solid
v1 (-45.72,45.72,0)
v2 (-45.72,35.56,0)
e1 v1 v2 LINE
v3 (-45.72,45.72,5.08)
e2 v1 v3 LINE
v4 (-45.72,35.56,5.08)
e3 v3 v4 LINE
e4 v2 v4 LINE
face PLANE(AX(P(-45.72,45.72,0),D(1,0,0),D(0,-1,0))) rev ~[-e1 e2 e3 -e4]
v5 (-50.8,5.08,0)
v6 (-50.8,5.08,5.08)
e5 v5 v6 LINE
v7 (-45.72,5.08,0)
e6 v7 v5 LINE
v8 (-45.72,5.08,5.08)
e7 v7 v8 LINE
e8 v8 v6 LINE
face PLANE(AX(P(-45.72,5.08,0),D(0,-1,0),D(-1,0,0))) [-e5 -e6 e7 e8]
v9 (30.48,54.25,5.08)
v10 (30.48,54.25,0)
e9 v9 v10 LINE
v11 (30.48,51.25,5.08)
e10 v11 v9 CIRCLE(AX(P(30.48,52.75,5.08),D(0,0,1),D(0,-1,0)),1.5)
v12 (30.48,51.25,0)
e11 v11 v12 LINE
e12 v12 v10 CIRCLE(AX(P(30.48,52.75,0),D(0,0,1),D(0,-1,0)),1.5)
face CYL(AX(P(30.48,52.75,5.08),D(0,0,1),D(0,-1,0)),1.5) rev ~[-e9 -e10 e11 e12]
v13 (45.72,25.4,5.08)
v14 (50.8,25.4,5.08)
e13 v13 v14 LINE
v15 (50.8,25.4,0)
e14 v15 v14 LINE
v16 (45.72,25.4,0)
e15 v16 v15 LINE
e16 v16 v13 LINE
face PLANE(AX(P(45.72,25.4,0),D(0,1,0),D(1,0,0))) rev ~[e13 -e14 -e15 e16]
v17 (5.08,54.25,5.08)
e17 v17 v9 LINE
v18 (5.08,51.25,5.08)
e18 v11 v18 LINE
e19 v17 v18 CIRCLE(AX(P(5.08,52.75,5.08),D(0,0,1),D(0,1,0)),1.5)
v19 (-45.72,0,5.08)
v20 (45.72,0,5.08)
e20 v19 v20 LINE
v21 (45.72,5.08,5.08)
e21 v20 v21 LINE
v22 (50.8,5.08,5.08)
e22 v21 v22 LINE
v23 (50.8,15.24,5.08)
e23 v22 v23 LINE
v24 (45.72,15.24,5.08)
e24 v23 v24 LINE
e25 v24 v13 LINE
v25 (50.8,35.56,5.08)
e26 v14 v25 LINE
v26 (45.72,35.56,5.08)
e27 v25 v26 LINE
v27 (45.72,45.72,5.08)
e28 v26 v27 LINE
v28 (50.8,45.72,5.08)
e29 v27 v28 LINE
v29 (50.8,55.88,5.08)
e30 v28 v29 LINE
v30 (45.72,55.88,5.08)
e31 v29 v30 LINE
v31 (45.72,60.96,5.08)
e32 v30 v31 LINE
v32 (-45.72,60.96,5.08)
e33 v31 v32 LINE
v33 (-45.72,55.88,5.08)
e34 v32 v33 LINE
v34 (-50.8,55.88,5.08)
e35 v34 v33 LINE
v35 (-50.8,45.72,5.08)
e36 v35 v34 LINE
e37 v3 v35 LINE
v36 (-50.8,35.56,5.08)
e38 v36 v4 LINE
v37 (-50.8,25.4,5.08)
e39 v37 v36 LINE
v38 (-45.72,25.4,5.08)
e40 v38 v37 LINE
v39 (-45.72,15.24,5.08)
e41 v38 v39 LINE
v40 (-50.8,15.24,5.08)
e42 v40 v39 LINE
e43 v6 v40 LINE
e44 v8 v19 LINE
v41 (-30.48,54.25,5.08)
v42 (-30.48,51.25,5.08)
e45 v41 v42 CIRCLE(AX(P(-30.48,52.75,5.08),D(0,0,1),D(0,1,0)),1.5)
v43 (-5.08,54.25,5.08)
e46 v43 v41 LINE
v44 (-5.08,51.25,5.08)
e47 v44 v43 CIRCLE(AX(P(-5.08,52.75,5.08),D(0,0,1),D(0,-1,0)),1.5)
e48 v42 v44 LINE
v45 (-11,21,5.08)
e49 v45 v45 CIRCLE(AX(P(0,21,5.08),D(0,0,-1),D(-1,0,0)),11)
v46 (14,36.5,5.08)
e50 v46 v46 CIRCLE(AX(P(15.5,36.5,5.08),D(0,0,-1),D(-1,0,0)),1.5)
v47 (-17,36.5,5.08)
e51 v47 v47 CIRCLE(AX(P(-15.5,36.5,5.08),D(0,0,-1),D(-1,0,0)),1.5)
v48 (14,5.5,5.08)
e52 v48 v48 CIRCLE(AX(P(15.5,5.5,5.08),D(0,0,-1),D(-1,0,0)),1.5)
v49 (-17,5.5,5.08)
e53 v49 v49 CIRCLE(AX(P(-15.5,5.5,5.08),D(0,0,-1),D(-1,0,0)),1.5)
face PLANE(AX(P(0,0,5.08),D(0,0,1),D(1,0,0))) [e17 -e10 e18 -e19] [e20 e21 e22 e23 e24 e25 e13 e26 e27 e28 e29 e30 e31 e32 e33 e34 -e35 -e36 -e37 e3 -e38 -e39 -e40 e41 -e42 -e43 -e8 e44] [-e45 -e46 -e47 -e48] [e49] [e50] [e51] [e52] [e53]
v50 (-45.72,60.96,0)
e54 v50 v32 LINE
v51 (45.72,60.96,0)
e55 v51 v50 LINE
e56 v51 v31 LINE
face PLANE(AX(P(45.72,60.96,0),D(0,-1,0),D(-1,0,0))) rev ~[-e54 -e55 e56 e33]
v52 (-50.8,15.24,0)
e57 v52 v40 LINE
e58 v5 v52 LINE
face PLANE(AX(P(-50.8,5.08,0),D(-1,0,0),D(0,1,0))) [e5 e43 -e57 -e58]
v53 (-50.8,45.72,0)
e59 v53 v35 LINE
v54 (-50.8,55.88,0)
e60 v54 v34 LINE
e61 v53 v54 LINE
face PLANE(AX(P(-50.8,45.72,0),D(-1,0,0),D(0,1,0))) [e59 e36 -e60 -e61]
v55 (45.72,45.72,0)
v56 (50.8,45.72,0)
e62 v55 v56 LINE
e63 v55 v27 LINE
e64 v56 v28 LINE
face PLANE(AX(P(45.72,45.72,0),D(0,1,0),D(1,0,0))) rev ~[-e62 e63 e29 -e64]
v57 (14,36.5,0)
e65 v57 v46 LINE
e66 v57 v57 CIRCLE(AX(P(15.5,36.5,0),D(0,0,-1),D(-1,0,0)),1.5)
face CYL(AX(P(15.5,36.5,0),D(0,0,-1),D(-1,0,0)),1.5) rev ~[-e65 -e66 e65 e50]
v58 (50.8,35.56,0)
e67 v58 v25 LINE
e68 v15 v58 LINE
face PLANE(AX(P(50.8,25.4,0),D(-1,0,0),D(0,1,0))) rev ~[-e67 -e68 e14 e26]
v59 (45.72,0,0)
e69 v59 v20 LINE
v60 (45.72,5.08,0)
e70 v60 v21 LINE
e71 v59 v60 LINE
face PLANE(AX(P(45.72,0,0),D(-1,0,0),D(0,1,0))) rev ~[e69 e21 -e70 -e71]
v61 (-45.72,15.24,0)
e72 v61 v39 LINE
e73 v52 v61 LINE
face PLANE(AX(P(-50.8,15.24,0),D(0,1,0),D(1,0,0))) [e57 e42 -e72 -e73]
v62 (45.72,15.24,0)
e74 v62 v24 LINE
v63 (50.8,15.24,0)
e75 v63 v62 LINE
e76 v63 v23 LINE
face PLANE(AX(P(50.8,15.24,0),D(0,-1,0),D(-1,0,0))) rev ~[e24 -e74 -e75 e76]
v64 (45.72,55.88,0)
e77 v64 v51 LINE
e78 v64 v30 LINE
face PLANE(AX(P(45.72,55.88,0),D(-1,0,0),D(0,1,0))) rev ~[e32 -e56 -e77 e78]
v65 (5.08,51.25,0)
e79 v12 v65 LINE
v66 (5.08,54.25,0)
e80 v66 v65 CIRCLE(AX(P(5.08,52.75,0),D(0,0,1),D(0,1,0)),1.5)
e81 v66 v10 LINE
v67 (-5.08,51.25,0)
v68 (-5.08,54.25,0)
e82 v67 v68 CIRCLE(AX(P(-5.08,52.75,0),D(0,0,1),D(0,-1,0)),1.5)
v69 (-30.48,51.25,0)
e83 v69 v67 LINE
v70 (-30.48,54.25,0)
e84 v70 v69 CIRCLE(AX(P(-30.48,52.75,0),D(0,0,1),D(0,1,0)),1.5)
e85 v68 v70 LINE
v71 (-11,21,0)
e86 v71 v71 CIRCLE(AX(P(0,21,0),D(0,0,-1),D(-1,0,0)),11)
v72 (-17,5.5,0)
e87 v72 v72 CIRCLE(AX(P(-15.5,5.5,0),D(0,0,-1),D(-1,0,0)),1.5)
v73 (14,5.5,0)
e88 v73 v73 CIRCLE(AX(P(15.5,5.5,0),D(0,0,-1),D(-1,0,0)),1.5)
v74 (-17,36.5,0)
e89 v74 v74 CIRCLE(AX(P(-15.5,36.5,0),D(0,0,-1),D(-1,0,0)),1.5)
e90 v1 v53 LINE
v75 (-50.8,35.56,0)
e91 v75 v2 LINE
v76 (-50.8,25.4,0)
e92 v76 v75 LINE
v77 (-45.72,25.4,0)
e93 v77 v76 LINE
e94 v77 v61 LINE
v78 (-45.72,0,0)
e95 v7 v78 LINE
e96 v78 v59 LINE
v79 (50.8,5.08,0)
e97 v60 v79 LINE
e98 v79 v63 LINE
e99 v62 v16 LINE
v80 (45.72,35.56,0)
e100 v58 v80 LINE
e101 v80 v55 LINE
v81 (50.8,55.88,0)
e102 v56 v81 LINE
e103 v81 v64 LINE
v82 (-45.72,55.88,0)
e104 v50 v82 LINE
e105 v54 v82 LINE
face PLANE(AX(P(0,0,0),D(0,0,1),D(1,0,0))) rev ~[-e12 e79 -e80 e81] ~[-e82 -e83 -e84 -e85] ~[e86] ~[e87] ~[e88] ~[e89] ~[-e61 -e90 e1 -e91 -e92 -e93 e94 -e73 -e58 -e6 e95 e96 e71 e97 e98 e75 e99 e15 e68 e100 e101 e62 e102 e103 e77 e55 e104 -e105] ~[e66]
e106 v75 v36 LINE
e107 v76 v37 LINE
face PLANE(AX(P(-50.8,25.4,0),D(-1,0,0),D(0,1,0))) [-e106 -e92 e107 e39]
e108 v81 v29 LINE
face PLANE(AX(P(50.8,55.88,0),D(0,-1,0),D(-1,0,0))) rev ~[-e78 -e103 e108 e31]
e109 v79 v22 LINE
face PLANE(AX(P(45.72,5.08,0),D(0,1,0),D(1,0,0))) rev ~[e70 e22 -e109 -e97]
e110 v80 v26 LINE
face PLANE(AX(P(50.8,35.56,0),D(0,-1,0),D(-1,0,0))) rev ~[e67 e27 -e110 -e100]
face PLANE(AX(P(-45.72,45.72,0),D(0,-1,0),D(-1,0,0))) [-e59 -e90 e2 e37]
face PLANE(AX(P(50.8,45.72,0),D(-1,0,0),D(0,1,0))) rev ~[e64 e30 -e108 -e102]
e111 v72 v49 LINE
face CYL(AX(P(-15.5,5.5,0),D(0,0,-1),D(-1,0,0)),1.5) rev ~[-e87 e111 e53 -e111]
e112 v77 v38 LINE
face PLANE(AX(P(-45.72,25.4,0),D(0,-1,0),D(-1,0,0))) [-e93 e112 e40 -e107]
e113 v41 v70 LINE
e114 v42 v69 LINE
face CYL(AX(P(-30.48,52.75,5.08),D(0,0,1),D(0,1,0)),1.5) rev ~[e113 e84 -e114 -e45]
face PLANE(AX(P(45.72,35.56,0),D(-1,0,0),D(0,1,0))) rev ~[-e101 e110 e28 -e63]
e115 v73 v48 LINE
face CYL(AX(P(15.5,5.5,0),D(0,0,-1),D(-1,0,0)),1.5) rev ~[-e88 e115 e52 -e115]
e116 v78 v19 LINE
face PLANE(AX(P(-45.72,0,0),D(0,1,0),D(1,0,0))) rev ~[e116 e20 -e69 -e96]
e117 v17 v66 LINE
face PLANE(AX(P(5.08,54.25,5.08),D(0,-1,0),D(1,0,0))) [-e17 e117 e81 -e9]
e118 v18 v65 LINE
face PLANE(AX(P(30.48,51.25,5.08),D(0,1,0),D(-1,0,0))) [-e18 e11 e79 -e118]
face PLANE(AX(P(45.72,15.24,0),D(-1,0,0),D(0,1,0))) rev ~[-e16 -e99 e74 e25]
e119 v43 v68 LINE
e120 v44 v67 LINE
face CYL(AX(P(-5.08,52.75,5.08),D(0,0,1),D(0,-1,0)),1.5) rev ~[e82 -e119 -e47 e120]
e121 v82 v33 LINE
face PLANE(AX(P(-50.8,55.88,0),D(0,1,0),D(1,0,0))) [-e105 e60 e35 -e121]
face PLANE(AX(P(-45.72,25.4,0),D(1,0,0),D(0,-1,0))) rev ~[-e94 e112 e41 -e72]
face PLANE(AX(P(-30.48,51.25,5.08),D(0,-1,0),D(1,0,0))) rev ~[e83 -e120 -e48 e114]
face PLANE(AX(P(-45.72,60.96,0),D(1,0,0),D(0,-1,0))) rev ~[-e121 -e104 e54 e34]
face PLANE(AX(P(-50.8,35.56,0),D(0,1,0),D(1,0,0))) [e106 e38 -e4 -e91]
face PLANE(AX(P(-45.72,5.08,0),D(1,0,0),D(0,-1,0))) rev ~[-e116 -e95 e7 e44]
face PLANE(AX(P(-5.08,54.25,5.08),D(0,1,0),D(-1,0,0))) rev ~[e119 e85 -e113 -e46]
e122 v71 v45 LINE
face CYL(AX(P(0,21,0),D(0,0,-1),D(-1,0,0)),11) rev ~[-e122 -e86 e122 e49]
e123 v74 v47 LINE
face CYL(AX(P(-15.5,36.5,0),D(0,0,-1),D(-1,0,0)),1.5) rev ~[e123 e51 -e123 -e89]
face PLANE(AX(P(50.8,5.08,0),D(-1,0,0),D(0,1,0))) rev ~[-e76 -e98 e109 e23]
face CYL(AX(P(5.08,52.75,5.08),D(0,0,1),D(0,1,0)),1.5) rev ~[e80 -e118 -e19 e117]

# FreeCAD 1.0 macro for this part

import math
import FreeCAD as App
import Part
import Sketcher
from FreeCAD import Vector
Q = App.Units.Quantity


def add_polygon(sketch, points):
    """Adds a closed chain of lines whose ends are joined by coincident constraints."""
    first, n = sketch.GeometryCount, len(points)
    for a, b in zip(points, points[1:] + points[:1]):
        sketch.addGeometry(Part.LineSegment(App.Vector(*a, 0), App.Vector(*b, 0)), False)
    for i in range(n):
        sketch.addConstraint(Sketcher.Constraint("Coincident", first + i, 2, first + (i + 1) % n, 1))

doc = App.newDocument("Part")
body = doc.addObject("PartDesign::Body", "Body")

# Sketch on XY plane
sketch1 = body.newObject("Sketcher::SketchObject", "Sketch")
sketch1.AttachmentSupport = (doc.getObject("XY_Plane"), [""])
sketch1.MapMode = "FlatFace"
add_polygon(sketch1, [(-45.72, 0), (45.72, 0), (45.72, 5.08), (50.8, 5.08), (50.8, 15.24), (45.72, 15.24), (45.72, 25.4), (50.8, 25.4), (50.8, 35.56), (45.72, 35.56), (45.72, 45.72), (50.8, 45.72), (50.8, 55.88), (45.72, 55.88), (45.72, 60.96), (-45.72, 60.96), (-45.72, 55.88), (-50.8, 55.88), (-50.8, 45.72), (-45.72, 45.72), (-45.72, 35.56), (-50.8, 35.56), (-50.8, 25.4), (-45.72, 25.4), (-45.72, 15.24), (-50.8, 15.24), (-50.8, 5.08), (-45.72, 5.08)])  # lines 0-27
sketch1.addConstraint([
    Sketcher.Constraint("Horizontal", 0),
    Sketcher.Constraint("Vertical", 1),
    Sketcher.Constraint("Horizontal", 2),
    Sketcher.Constraint("Vertical", 3),
    Sketcher.Constraint("Horizontal", 4),
    Sketcher.Constraint("Vertical", 5),
    Sketcher.Constraint("Horizontal", 6),
    Sketcher.Constraint("Vertical", 7),
    Sketcher.Constraint("Horizontal", 8),
    Sketcher.Constraint("Vertical", 9),
    Sketcher.Constraint("Horizontal", 10),
    Sketcher.Constraint("Vertical", 11),
    Sketcher.Constraint("Horizontal", 12),
    Sketcher.Constraint("Vertical", 13),
    Sketcher.Constraint("Horizontal", 14),
    Sketcher.Constraint("Vertical", 15),
    Sketcher.Constraint("Horizontal", 16),
    Sketcher.Constraint("Vertical", 17),
    Sketcher.Constraint("Horizontal", 18),
    Sketcher.Constraint("Vertical", 19),
    Sketcher.Constraint("Horizontal", 20),
    Sketcher.Constraint("Vertical", 21),
    Sketcher.Constraint("Horizontal", 22),
    Sketcher.Constraint("Vertical", 23),
    Sketcher.Constraint("Horizontal", 24),
    Sketcher.Constraint("Vertical", 25),
    Sketcher.Constraint("Horizontal", 26),
    Sketcher.Constraint("Vertical", 27),
    Sketcher.Constraint("Symmetric", 0, 2, 27, 2, -1, 1),
    Sketcher.Constraint("Symmetric", 12, 2, 15, 2, -2),
    Sketcher.Constraint("Symmetric", 10, 2, 17, 2, -2),
    Sketcher.Constraint("Symmetric", 8, 2, 19, 2, -2),
    Sketcher.Constraint("Symmetric", 6, 2, 21, 2, -2),
    Sketcher.Constraint("Symmetric", 4, 2, 23, 2, -2),
    Sketcher.Constraint("Symmetric", 2, 2, 25, 2, -2),
    Sketcher.Constraint("Vertical", 1, 2, 4, 2),
    Sketcher.Constraint("Vertical", 3, 2, 6, 2),
    Sketcher.Constraint("Vertical", 5, 2, 8, 2),
    Sketcher.Constraint("Vertical", 7, 2, 10, 2),
    Sketcher.Constraint("Vertical", 9, 2, 12, 2),
    Sketcher.Constraint("Equal", 26, 1),
    Sketcher.Constraint("Equal", 3, 5),
    Sketcher.Constraint("Equal", 5, 7),
    Sketcher.Constraint("Equal", 7, 9),
    Sketcher.Constraint("Equal", 9, 11),
    Sketcher.Constraint("Equal", 1, 13),
    Sketcher.Constraint("DistanceX", 0, 1, 0, 2, Q("3.6 in")),
    Sketcher.Constraint("DistanceX", 2, 1, 2, 2, Q("0.2 in")),
    Sketcher.Constraint("DistanceY", 3, 1, 3, 2, Q("0.4 in")),
])
pad1 = body.newObject("PartDesign::Pad", "Pad")
pad1.Profile = sketch1
pad1.Length = Q("0.2 in")

# Sketch on XY plane
sketch2 = body.newObject("Sketcher::SketchObject", "Sketch001")
sketch2.AttachmentSupport = (doc.getObject("XY_Plane"), [""])
sketch2.MapMode = "FlatFace"
sketch2.addGeometry([
    Part.Circle(Vector(15.5, 5.5, 0), Vector(0, 0, 1), 1.5),  # 0
    Part.Circle(Vector(-15.5, 36.5, 0), Vector(0, 0, 1), 1.5),  # 1
    Part.Circle(Vector(15.5, 36.5, 0), Vector(0, 0, 1), 1.5),  # 2
    Part.Circle(Vector(-15.5, 5.5, 0), Vector(0, 0, 1), 1.5),  # 3
    Part.Circle(Vector(0, 21, 0), Vector(0, 0, 1), 11),  # 4
], False)
sketch2.addConstraint([
    Sketcher.Constraint("Equal", 0, 1),
    Sketcher.Constraint("Equal", 1, 2),
    Sketcher.Constraint("Equal", 2, 3),
    Sketcher.Constraint("Symmetric", 1, 3, 2, 3, -2),
    Sketcher.Constraint("Symmetric", 0, 3, 3, 3, -2),
    Sketcher.Constraint("PointOnObject", 4, 3, -2),
    Sketcher.Constraint("Vertical", 0, 3, 2, 3),
    Sketcher.Constraint("Diameter", 0, Q("0.1181 in")),
    Sketcher.Constraint("Diameter", 4, Q("22 mm")),
    Sketcher.Constraint("DistanceY", -1, 1, 1, 3, Q("1.437 in")),
    Sketcher.Constraint("DistanceX", -1, 1, 0, 3, Q("15.5 mm")),
    Sketcher.Constraint("DistanceY", -1, 1, 0, 3, Q("5.5 mm")),
    Sketcher.Constraint("DistanceY", -1, 1, 4, 3, Q("21 mm")),
])
pocket1 = body.newObject("PartDesign::Pocket", "Pocket")
pocket1.Profile = sketch2
pocket1.Length = Q("1 in")
pocket1.Reversed = True

# Sketch on XY plane
sketch3 = body.newObject("Sketcher::SketchObject", "Sketch002")
sketch3.AttachmentSupport = (doc.getObject("XY_Plane"), [""])
sketch3.MapMode = "FlatFace"
sketch3.AttachmentOffset = App.Placement(Vector(0, 0, 0.2 * 25.4), App.Rotation())
sketch3.addGeometry([
    Part.ArcOfCircle(Part.Circle(Vector(-30.48, 52.75, 0), Vector(0, 0, 1), 1.5), math.radians(90), math.radians(270)),  # 0
    Part.LineSegment(Vector(-30.48, 51.25, 0), Vector(-5.08, 51.25, 0)),  # 1
    Part.ArcOfCircle(Part.Circle(Vector(-5.08, 52.75, 0), Vector(0, 0, 1), 1.5), math.radians(-90), math.radians(90)),  # 2
    Part.LineSegment(Vector(-5.08, 54.25, 0), Vector(-30.48, 54.25, 0)),  # 3
    Part.LineSegment(Vector(5.08, 51.25, 0), Vector(30.48, 51.25, 0)),  # 4
    Part.ArcOfCircle(Part.Circle(Vector(30.48, 52.75, 0), Vector(0, 0, 1), 1.5), math.radians(-90), math.radians(90)),  # 5
    Part.LineSegment(Vector(30.48, 54.25, 0), Vector(5.08, 54.25, 0)),  # 6
    Part.ArcOfCircle(Part.Circle(Vector(5.08, 52.75, 0), Vector(0, 0, 1), 1.5), math.radians(90), math.radians(270)),  # 7
], False)
sketch3.addConstraint([
    Sketcher.Constraint("Tangent", 0, 2, 1, 1),
    Sketcher.Constraint("Tangent", 1, 2, 2, 1),
    Sketcher.Constraint("Tangent", 2, 2, 3, 1),
    Sketcher.Constraint("Tangent", 3, 2, 0, 1),
    Sketcher.Constraint("Tangent", 4, 2, 5, 1),
    Sketcher.Constraint("Tangent", 5, 2, 6, 1),
    Sketcher.Constraint("Tangent", 6, 2, 7, 1),
    Sketcher.Constraint("Tangent", 7, 2, 4, 1),
    Sketcher.Constraint("Horizontal", 1),
    Sketcher.Constraint("Horizontal", 3),
    Sketcher.Constraint("Horizontal", 4),
    Sketcher.Constraint("Horizontal", 6),
    Sketcher.Constraint("Equal", 2, 5),
    Sketcher.Constraint("Symmetric", 0, 3, 5, 3, -2),
    Sketcher.Constraint("Equal", 3, 4),
    Sketcher.Constraint("DistanceX", 1, 1, 1, 2, Q("1 in")),
    Sketcher.Constraint("Radius", 0, Q("1.5 mm")),
    Sketcher.Constraint("DistanceX", 0, 3, -1, 1, Q("1.2 in")),
    Sketcher.Constraint("DistanceY", -1, 1, 0, 3, Q("52.75 mm")),
])
pocket2 = body.newObject("PartDesign::Pocket", "Pocket001")
pocket2.Profile = sketch3
pocket2.Length = Q("1 in")

doc.recompute()
